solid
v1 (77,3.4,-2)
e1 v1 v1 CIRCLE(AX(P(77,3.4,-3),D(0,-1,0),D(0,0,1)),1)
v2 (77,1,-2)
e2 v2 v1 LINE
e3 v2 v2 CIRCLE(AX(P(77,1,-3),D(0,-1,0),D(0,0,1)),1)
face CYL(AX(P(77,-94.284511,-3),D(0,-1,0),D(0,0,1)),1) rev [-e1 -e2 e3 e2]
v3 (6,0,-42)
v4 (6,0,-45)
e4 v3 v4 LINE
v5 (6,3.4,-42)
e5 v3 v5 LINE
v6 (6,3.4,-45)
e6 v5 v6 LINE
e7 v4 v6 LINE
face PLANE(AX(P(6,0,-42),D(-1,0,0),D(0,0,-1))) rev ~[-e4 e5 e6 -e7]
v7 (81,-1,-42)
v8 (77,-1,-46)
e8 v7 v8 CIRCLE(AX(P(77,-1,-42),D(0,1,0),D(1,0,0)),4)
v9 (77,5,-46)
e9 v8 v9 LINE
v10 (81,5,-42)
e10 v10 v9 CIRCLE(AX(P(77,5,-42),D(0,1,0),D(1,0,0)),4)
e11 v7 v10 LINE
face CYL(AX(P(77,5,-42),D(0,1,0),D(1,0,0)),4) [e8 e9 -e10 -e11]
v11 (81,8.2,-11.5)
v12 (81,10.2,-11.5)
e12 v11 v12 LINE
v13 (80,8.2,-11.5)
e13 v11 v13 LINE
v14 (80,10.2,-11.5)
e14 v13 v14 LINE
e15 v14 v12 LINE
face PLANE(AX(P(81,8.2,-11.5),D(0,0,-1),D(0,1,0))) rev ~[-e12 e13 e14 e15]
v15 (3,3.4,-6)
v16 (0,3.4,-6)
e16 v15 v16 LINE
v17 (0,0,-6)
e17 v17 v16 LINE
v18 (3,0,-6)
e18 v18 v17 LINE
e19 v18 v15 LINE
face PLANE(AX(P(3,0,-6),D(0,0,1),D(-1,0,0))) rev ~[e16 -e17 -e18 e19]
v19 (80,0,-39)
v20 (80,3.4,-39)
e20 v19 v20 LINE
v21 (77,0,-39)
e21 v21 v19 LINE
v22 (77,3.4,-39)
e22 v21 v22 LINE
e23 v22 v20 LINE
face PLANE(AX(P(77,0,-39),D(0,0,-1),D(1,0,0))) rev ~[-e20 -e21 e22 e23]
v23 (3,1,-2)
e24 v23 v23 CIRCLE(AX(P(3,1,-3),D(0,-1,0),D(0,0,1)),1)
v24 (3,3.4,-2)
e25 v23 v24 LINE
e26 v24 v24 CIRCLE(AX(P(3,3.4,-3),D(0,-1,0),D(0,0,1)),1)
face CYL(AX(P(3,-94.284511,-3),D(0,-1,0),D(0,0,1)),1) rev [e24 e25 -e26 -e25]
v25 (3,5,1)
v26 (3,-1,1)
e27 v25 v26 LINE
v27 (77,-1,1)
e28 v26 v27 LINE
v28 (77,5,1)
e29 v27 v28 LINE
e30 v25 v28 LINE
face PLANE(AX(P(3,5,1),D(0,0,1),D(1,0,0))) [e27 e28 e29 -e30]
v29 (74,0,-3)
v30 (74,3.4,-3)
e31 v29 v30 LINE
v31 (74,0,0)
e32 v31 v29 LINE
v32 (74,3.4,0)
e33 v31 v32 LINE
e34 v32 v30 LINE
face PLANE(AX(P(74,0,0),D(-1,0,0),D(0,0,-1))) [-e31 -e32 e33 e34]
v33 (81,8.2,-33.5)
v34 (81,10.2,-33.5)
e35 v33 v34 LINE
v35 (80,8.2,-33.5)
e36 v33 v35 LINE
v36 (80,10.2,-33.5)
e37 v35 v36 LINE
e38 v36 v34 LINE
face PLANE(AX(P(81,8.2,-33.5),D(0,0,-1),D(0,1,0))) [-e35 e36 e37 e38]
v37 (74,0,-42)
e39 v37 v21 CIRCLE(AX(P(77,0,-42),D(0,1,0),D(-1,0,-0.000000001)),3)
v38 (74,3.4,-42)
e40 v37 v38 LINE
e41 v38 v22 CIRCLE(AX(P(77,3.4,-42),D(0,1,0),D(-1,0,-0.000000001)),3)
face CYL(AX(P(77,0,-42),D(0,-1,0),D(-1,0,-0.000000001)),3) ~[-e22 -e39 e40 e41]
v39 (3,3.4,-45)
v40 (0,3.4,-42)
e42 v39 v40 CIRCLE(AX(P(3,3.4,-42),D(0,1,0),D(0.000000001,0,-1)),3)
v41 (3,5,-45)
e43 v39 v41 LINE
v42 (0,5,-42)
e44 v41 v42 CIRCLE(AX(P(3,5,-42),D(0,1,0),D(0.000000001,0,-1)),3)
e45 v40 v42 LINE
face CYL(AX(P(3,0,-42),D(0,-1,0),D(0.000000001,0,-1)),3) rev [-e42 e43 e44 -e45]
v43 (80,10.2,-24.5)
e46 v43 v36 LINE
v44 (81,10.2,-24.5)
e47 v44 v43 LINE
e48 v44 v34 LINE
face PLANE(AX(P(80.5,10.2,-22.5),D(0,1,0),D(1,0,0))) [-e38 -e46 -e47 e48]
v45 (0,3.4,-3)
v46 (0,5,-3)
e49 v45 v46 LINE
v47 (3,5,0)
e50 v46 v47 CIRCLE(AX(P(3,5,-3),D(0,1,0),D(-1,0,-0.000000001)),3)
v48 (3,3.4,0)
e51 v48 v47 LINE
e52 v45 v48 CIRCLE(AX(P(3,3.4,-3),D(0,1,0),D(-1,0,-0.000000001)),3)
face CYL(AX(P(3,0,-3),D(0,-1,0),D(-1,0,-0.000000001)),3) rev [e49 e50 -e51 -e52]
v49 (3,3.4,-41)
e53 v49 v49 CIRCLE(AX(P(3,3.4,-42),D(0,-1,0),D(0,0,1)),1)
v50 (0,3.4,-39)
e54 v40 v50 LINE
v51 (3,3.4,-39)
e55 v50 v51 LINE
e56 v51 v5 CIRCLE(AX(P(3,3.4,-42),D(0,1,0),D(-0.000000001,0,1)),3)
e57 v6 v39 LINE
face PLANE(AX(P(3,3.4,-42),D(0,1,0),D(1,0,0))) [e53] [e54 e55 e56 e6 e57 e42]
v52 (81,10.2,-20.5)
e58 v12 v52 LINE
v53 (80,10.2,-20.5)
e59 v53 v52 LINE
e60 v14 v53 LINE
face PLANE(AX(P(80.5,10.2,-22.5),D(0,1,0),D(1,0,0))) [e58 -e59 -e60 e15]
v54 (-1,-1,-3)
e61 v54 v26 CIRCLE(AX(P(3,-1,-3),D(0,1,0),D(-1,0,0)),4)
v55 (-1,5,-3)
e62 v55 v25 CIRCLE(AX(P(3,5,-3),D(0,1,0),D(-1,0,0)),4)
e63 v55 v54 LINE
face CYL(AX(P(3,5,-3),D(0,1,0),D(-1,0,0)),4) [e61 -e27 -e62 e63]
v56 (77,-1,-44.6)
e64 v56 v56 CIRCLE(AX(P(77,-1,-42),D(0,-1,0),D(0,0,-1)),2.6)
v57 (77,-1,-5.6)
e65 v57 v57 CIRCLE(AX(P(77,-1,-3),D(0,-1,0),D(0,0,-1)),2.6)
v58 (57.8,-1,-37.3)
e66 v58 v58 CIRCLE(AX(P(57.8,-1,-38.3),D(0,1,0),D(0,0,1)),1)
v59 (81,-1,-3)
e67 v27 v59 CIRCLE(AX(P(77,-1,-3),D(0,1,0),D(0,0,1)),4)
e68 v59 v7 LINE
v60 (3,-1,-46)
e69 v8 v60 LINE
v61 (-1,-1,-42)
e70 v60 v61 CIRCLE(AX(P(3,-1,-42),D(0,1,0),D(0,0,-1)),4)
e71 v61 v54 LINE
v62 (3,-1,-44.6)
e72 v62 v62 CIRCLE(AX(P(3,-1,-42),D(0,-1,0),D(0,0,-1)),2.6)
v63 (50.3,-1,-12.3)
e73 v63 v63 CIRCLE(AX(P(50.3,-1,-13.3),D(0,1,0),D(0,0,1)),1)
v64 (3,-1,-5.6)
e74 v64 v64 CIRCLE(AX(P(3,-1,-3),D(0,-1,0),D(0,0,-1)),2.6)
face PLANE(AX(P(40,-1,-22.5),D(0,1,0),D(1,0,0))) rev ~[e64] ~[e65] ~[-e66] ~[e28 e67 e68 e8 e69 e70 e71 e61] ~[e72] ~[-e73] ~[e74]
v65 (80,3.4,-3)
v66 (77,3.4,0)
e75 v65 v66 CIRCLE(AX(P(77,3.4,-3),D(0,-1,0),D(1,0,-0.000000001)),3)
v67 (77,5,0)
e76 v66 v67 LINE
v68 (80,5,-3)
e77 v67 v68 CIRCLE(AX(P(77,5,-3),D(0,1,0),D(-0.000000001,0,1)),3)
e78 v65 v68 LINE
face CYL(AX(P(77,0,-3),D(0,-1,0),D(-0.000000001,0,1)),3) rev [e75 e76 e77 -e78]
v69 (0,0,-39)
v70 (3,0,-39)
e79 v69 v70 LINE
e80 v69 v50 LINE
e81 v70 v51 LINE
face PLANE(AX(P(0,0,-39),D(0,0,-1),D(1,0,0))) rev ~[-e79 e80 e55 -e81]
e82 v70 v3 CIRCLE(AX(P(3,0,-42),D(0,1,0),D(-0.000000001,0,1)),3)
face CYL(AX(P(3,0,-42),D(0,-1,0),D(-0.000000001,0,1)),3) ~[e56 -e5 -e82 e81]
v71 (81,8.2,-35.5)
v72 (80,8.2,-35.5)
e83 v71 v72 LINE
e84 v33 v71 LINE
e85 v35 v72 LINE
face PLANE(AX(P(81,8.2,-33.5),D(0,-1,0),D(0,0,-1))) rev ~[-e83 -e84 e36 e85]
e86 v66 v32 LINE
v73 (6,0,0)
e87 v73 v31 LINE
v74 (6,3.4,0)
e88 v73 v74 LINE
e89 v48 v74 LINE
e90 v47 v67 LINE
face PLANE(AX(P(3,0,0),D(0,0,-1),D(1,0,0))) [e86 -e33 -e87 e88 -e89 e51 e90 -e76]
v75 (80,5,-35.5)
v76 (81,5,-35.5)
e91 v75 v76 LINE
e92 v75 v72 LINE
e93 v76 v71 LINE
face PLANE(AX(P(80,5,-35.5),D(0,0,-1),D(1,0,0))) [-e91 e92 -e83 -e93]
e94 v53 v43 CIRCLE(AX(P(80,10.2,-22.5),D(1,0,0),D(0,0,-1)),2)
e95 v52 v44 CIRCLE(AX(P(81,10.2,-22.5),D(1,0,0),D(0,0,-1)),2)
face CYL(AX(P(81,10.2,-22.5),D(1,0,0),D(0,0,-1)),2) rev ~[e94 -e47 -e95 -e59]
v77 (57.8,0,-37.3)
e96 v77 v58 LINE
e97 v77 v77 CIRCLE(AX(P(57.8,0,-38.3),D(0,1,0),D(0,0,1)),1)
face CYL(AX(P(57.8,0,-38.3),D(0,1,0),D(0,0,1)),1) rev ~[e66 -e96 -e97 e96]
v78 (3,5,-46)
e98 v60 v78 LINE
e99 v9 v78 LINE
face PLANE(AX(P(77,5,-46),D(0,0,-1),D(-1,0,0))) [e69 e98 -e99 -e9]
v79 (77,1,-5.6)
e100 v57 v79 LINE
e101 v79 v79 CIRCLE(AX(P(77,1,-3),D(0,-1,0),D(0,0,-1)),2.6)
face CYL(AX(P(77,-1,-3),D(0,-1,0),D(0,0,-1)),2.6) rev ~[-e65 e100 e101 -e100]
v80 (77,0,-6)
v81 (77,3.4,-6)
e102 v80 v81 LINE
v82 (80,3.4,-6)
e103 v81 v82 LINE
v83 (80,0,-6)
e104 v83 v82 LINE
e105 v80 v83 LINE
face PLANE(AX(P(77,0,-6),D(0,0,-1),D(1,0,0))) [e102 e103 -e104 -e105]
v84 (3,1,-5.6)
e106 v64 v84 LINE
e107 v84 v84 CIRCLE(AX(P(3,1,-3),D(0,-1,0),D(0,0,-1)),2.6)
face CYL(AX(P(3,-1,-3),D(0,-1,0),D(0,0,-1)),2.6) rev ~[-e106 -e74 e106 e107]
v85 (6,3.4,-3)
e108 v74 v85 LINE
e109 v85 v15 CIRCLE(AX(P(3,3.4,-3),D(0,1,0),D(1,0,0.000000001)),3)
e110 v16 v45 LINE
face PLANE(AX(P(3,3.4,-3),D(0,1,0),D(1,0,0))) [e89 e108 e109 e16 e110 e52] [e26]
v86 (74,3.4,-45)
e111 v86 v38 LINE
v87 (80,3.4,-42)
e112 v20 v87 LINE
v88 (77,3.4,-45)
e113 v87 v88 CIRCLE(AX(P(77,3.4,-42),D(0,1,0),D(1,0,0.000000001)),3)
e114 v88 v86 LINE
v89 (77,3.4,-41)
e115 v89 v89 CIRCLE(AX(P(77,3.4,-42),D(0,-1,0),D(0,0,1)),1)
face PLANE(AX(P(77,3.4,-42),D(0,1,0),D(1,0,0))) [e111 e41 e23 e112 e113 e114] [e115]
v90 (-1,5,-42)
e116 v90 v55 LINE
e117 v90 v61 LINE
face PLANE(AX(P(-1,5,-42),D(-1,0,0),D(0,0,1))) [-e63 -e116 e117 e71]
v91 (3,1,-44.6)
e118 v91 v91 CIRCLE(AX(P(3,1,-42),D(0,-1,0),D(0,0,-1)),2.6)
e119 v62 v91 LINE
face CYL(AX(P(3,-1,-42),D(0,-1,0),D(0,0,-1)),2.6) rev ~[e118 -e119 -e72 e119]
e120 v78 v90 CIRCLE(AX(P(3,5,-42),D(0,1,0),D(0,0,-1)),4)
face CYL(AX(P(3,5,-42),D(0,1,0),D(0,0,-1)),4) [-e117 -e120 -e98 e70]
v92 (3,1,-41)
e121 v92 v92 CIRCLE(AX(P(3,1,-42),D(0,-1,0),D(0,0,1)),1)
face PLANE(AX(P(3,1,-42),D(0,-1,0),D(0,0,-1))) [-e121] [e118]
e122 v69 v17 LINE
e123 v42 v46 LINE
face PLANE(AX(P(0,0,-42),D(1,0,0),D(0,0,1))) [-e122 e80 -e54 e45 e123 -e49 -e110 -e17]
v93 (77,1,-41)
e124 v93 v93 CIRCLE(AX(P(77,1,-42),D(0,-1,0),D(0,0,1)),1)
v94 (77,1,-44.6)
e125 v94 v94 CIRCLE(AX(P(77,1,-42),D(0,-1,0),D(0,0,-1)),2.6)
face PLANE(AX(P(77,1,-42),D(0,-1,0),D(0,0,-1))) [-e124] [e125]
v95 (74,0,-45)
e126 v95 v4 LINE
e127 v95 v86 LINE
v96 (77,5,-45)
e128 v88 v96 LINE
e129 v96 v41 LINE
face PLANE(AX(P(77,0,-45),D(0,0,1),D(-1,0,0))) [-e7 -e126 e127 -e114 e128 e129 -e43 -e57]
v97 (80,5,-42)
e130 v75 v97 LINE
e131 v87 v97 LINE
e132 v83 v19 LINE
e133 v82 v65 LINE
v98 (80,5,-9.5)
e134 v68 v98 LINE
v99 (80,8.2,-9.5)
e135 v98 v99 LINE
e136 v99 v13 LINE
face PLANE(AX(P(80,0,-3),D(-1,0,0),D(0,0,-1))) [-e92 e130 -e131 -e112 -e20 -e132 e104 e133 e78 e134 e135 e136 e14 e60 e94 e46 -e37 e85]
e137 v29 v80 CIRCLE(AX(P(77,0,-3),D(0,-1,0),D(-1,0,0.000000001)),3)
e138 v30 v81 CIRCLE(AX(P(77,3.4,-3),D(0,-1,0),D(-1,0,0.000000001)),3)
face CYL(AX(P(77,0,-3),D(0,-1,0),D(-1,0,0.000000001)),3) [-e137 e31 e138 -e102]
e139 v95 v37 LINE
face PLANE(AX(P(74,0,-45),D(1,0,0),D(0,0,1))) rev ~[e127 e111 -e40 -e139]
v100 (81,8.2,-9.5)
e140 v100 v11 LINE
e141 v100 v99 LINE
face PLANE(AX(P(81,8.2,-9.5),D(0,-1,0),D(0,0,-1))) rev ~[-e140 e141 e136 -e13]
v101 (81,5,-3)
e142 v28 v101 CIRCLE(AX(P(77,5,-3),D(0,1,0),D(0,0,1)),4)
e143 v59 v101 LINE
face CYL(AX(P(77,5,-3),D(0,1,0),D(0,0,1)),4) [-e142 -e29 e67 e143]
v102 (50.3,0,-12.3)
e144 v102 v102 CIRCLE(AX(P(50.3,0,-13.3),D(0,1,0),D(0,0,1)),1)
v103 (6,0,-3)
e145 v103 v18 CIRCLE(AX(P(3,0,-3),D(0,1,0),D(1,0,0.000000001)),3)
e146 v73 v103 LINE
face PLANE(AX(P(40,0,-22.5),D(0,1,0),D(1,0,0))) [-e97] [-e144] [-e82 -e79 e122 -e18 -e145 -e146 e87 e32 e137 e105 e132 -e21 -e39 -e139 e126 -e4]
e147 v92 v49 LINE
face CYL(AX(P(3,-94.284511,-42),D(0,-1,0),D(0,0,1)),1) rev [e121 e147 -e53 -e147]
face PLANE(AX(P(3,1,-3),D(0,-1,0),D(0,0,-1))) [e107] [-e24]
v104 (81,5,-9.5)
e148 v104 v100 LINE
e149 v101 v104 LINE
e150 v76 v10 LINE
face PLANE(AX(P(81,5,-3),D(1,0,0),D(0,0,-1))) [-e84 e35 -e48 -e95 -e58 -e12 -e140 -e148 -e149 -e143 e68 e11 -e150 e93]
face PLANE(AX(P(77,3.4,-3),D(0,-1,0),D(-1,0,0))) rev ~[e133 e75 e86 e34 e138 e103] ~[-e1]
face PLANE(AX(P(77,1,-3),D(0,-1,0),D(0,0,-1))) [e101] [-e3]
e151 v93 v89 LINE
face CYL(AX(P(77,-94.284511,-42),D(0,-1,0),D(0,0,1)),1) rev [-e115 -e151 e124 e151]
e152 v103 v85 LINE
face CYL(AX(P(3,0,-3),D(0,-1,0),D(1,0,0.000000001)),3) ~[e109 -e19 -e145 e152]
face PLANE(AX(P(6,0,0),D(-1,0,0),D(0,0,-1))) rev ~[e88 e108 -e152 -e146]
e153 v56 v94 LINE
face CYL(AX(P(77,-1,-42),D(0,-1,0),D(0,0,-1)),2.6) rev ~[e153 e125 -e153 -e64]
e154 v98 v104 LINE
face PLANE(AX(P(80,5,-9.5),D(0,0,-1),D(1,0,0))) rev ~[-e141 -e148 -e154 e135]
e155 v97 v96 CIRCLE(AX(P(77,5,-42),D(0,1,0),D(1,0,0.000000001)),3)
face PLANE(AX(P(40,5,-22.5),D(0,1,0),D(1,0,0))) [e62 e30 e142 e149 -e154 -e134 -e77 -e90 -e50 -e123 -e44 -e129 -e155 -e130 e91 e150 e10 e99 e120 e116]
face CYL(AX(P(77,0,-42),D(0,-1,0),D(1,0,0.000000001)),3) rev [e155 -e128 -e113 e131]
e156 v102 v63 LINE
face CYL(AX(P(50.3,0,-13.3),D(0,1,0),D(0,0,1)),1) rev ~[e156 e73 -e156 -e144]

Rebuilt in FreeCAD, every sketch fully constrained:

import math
import FreeCAD as App
import Part
import Sketcher

V = App.Vector
Q = App.Units.Quantity

doc = App.newDocument("Part")
params = doc.addObject("Spreadsheet::Sheet", "Params")
for row, (alias, value) in enumerate([
    ("sketch1_radius", "4 mm"),
    ("sketch1_width", "74 mm"),
    ("sketch1_height", "39 mm"),
    ("pad1_length", "1 mm"),
    ("sketch2_radius", "4 mm"),
    ("sketch2_width", "74 mm"),
    ("sketch2_height", "39 mm"),
    ("pad2_length", "5 mm"),
    ("sketch3_radius", "3 mm"),
    ("sketch3_width", "74 mm"),
    ("sketch3_height", "39 mm"),
    ("pocket1_length", "5 mm"),
    ("sketch4_radius", "3 mm"),
    ("pad3_length", "3.4 mm"),
    ("sketch5_diameter", "2 mm"),
    ("sketch6_diameter", "2 mm"),
    ("sketch7_diameter", "5.2 mm"),
    ("pocket4_length", "2 mm"),
    ("sketch8_width", "1 mm"),
    ("sketch8_height", "26 mm"),
    ("pad4_length", "5.2 mm"),
    ("sketch9_diameter", "4 mm"),
    ("sketch10_width", "4 mm"),
    ("sketch10_height", "2 mm"),
    ("sketch11_width", "4 mm"),
    ("sketch11_height", "2 mm"),
], start=1):
    params.set(f"A{row}", alias)
    params.set(f"B{row}", "=" + value)
    params.setAlias(f"B{row}", alias)

body = doc.addObject("PartDesign::Body", "Body")

# Sketch on XZ plane
sketch1 = doc.addObject("Sketcher::SketchObject", "Sketch")
body.addObject(sketch1)
sketch1.AttachmentSupport = (doc.XZ_Plane, [""])
sketch1.MapMode = "FlatFace"
sketch1.addGeometry([
    Part.LineSegment(V(3, 1, 0), V(77, 1, 0)),  # 0
    Part.ArcOfCircle(Part.Circle(V(77, -3, 0), V(0, 0, 1), 4), math.radians(0), math.radians(90)),  # 1
    Part.LineSegment(V(81, -3, 0), V(81, -42, 0)),  # 2
    Part.ArcOfCircle(Part.Circle(V(77, -42, 0), V(0, 0, 1), 4), math.radians(-90), math.radians(0)),  # 3
    Part.LineSegment(V(77, -46, 0), V(3, -46, 0)),  # 4
    Part.ArcOfCircle(Part.Circle(V(3, -42, 0), V(0, 0, 1), 4), math.radians(180), math.radians(270)),  # 5
    Part.LineSegment(V(-1, -42, 0), V(-1, -3, 0)),  # 6
    Part.ArcOfCircle(Part.Circle(V(3, -3, 0), V(0, 0, 1), 4), math.radians(90), math.radians(180)),  # 7
], False)
sketch1.addConstraint([
    Sketcher.Constraint("Tangent", 0, 2, 1, 2),
    Sketcher.Constraint("Tangent", 1, 1, 2, 1),
    Sketcher.Constraint("Tangent", 2, 2, 3, 2),
    Sketcher.Constraint("Tangent", 3, 1, 4, 1),
    Sketcher.Constraint("Tangent", 4, 2, 5, 2),
    Sketcher.Constraint("Tangent", 5, 1, 6, 1),
    Sketcher.Constraint("Tangent", 6, 2, 7, 2),
    Sketcher.Constraint("Tangent", 7, 1, 0, 1),
    Sketcher.Constraint("Horizontal", 0),
    Sketcher.Constraint("Vertical", 2),
    Sketcher.Constraint("Horizontal", 4),
    Sketcher.Constraint("Vertical", 6),
    Sketcher.Constraint("Equal", 1, 3),
    Sketcher.Constraint("Equal", 3, 5),
    Sketcher.Constraint("Equal", 5, 7),
    Sketcher.Constraint("Radius", 1, Q("4 mm")),
    Sketcher.Constraint("DistanceX", 0, 1, 0, 2, Q("74 mm")),
    Sketcher.Constraint("DistanceY", 2, 2, 2, 1, Q("39 mm")),
    Sketcher.Constraint("DistanceX", -1, 1, 1, 3, Q("77 mm")),
    Sketcher.Constraint("DistanceY", 1, 3, -1, 1, Q("3 mm")),
])
sketch1.setExpression("Constraints[15]", "Params.sketch1_radius")
sketch1.setExpression("Constraints[16]", "Params.sketch1_width")
sketch1.setExpression("Constraints[17]", "Params.sketch1_height")
pad1 = doc.addObject("PartDesign::Pad", "Pad")
body.addObject(pad1)
pad1.Profile = sketch1
pad1.setExpression("Length", "Params.pad1_length")

# Sketch on XZ plane
sketch2 = doc.addObject("Sketcher::SketchObject", "Sketch001")
body.addObject(sketch2)
sketch2.AttachmentSupport = (doc.XZ_Plane, [""])
sketch2.MapMode = "FlatFace"
sketch2.AttachmentOffset = App.Placement(V(0, 0, -5), App.Rotation())
sketch2.addGeometry([
    Part.LineSegment(V(3, 1, 0), V(77, 1, 0)),  # 0
    Part.ArcOfCircle(Part.Circle(V(77, -3, 0), V(0, 0, 1), 4), math.radians(0), math.radians(90)),  # 1
    Part.LineSegment(V(81, -3, 0), V(81, -42, 0)),  # 2
    Part.ArcOfCircle(Part.Circle(V(77, -42, 0), V(0, 0, 1), 4), math.radians(-90), math.radians(0)),  # 3
    Part.LineSegment(V(77, -46, 0), V(3, -46, 0)),  # 4
    Part.ArcOfCircle(Part.Circle(V(3, -42, 0), V(0, 0, 1), 4), math.radians(180), math.radians(270)),  # 5
    Part.LineSegment(V(-1, -42, 0), V(-1, -3, 0)),  # 6
    Part.ArcOfCircle(Part.Circle(V(3, -3, 0), V(0, 0, 1), 4), math.radians(90), math.radians(180)),  # 7
], False)
sketch2.addConstraint([
    Sketcher.Constraint("Tangent", 0, 2, 1, 2),
    Sketcher.Constraint("Tangent", 1, 1, 2, 1),
    Sketcher.Constraint("Tangent", 2, 2, 3, 2),
    Sketcher.Constraint("Tangent", 3, 1, 4, 1),
    Sketcher.Constraint("Tangent", 4, 2, 5, 2),
    Sketcher.Constraint("Tangent", 5, 1, 6, 1),
    Sketcher.Constraint("Tangent", 6, 2, 7, 2),
    Sketcher.Constraint("Tangent", 7, 1, 0, 1),
    Sketcher.Constraint("Horizontal", 0),
    Sketcher.Constraint("Vertical", 2),
    Sketcher.Constraint("Horizontal", 4),
    Sketcher.Constraint("Vertical", 6),
    Sketcher.Constraint("Equal", 1, 3),
    Sketcher.Constraint("Equal", 3, 5),
    Sketcher.Constraint("Equal", 5, 7),
    Sketcher.Constraint("Radius", 1, Q("4 mm")),
    Sketcher.Constraint("DistanceX", 0, 1, 0, 2, Q("74 mm")),
    Sketcher.Constraint("DistanceY", 2, 2, 2, 1, Q("39 mm")),
    Sketcher.Constraint("DistanceX", -1, 1, 1, 3, Q("77 mm")),
    Sketcher.Constraint("DistanceY", 1, 3, -1, 1, Q("3 mm")),
])
sketch2.setExpression("Constraints[15]", "Params.sketch2_radius")
sketch2.setExpression("Constraints[16]", "Params.sketch2_width")
sketch2.setExpression("Constraints[17]", "Params.sketch2_height")
pad2 = doc.addObject("PartDesign::Pad", "Pad001")
body.addObject(pad2)
pad2.Profile = sketch2
pad2.setExpression("Length", "Params.pad2_length")

# Sketch on XZ plane
sketch3 = doc.addObject("Sketcher::SketchObject", "Sketch002")
body.addObject(sketch3)
sketch3.AttachmentSupport = (doc.XZ_Plane, [""])
sketch3.MapMode = "FlatFace"
sketch3.addGeometry([
    Part.LineSegment(V(80, -3, 0), V(80, -42, 0)),  # 0
    Part.ArcOfCircle(Part.Circle(V(77, -42, 0), V(0, 0, 1), 3), math.radians(-90), math.radians(0)),  # 1
    Part.LineSegment(V(77, -45, 0), V(3, -45, 0)),  # 2
    Part.ArcOfCircle(Part.Circle(V(3, -42, 0), V(0, 0, 1), 3), math.radians(180), math.radians(270)),  # 3
    Part.LineSegment(V(0, -42, 0), V(0, -3, 0)),  # 4
    Part.ArcOfCircle(Part.Circle(V(3, -3, 0), V(0, 0, 1), 3), math.radians(90), math.radians(180)),  # 5
    Part.LineSegment(V(3, 0, 0), V(77, 0, 0)),  # 6
    Part.ArcOfCircle(Part.Circle(V(77, -3, 0), V(0, 0, 1), 3), math.radians(0), math.radians(90)),  # 7
], False)
sketch3.addConstraint([
    Sketcher.Constraint("Tangent", 0, 2, 1, 2),
    Sketcher.Constraint("Tangent", 1, 1, 2, 1),
    Sketcher.Constraint("Tangent", 2, 2, 3, 2),
    Sketcher.Constraint("Tangent", 3, 1, 4, 1),
    Sketcher.Constraint("Tangent", 4, 2, 5, 2),
    Sketcher.Constraint("Tangent", 5, 1, 6, 1),
    Sketcher.Constraint("Tangent", 6, 2, 7, 2),
    Sketcher.Constraint("Tangent", 7, 1, 0, 1),
    Sketcher.Constraint("Vertical", 0),
    Sketcher.Constraint("Horizontal", 2),
    Sketcher.Constraint("Vertical", 4),
    Sketcher.Constraint("Horizontal", 6),
    Sketcher.Constraint("Equal", 1, 3),
    Sketcher.Constraint("Equal", 3, 5),
    Sketcher.Constraint("Equal", 5, 7),
    Sketcher.Constraint("PointOnObject", 3, 1, -2),
    Sketcher.Constraint("PointOnObject", 5, 1, -1),
    Sketcher.Constraint("Radius", 1, Q("3 mm")),
    Sketcher.Constraint("DistanceX", 2, 2, 2, 1, Q("74 mm")),
    Sketcher.Constraint("DistanceY", 0, 2, 0, 1, Q("39 mm")),
])
sketch3.setExpression("Constraints[17]", "Params.sketch3_radius")
sketch3.setExpression("Constraints[18]", "Params.sketch3_width")
sketch3.setExpression("Constraints[19]", "Params.sketch3_height")
pocket1 = doc.addObject("PartDesign::Pocket", "Pocket")
body.addObject(pocket1)
pocket1.Profile = sketch3
pocket1.setExpression("Length", "Params.pocket1_length")

# Sketch on XZ plane
sketch4 = doc.addObject("Sketcher::SketchObject", "Sketch003")
body.addObject(sketch4)
sketch4.AttachmentSupport = (doc.XZ_Plane, [""])
sketch4.MapMode = "FlatFace"
sketch4.addGeometry([
    Part.LineSegment(V(80, -6, 0), V(77, -6, 0)),  # 0
    Part.ArcOfCircle(Part.Circle(V(77, -3, 0), V(0, 0, 1), 3), math.radians(180), math.radians(270)),  # 1
    Part.LineSegment(V(74, -3, 0), V(74, 0, 0)),  # 2
    Part.LineSegment(V(74, 0, 0), V(77, 0, 0)),  # 3
    Part.ArcOfCircle(Part.Circle(V(77, -3, 0), V(0, 0, 1), 3), math.radians(0), math.radians(90)),  # 4
    Part.LineSegment(V(80, -3, 0), V(80, -6, 0)),  # 5
    Part.LineSegment(V(77, -45, 0), V(74, -45, 0)),  # 6
    Part.LineSegment(V(74, -45, 0), V(74, -42, 0)),  # 7
    Part.ArcOfCircle(Part.Circle(V(77, -42, 0), V(0, 0, 1), 3), math.radians(90), math.radians(180)),  # 8
    Part.LineSegment(V(77, -39, 0), V(80, -39, 0)),  # 9
    Part.LineSegment(V(80, -39, 0), V(80, -42, 0)),  # 10
    Part.ArcOfCircle(Part.Circle(V(77, -42, 0), V(0, 0, 1), 3), math.radians(-90), math.radians(0)),  # 11
    Part.LineSegment(V(0, -42, 0), V(0, -39, 0)),  # 12
    Part.LineSegment(V(0, -39, 0), V(3, -39, 0)),  # 13
    Part.ArcOfCircle(Part.Circle(V(3, -42, 0), V(0, 0, 1), 3), math.radians(0), math.radians(90)),  # 14
    Part.LineSegment(V(6, -42, 0), V(6, -45, 0)),  # 15
    Part.LineSegment(V(6, -45, 0), V(3, -45, 0)),  # 16
    Part.ArcOfCircle(Part.Circle(V(3, -42, 0), V(0, 0, 1), 3), math.radians(180), math.radians(270)),  # 17
    Part.LineSegment(V(3, -6, 0), V(0, -6, 0)),  # 18
    Part.LineSegment(V(0, -6, 0), V(0, -3, 0)),  # 19
    Part.ArcOfCircle(Part.Circle(V(3, -3, 0), V(0, 0, 1), 3), math.radians(90), math.radians(180)),  # 20
    Part.LineSegment(V(3, 0, 0), V(6, 0, 0)),  # 21
    Part.LineSegment(V(6, 0, 0), V(6, -3, 0)),  # 22
    Part.ArcOfCircle(Part.Circle(V(3, -3, 0), V(0, 0, 1), 3), math.radians(-90), math.radians(0)),  # 23
], False)
sketch4.addConstraint([
    Sketcher.Constraint("Tangent", 0, 2, 1, 2),
    Sketcher.Constraint("Tangent", 1, 1, 2, 1),
    Sketcher.Constraint("Coincident", 2, 2, 3, 1),
    Sketcher.Constraint("Tangent", 3, 2, 4, 2),
    Sketcher.Constraint("Tangent", 4, 1, 5, 1),
    Sketcher.Constraint("Coincident", 5, 2, 0, 1),
    Sketcher.Constraint("Coincident", 6, 2, 7, 1),
    Sketcher.Constraint("Tangent", 7, 2, 8, 2),
    Sketcher.Constraint("Tangent", 8, 1, 9, 1),
    Sketcher.Constraint("Coincident", 9, 2, 10, 1),
    Sketcher.Constraint("Tangent", 10, 2, 11, 2),
    Sketcher.Constraint("Tangent", 11, 1, 6, 1),
    Sketcher.Constraint("Coincident", 12, 2, 13, 1),
    Sketcher.Constraint("Tangent", 13, 2, 14, 2),
    Sketcher.Constraint("Tangent", 14, 1, 15, 1),
    Sketcher.Constraint("Coincident", 15, 2, 16, 1),
    Sketcher.Constraint("Tangent", 16, 2, 17, 2),
    Sketcher.Constraint("Tangent", 17, 1, 12, 1),
    Sketcher.Constraint("Coincident", 18, 2, 19, 1),
    Sketcher.Constraint("Tangent", 19, 2, 20, 2),
    Sketcher.Constraint("Tangent", 20, 1, 21, 1),
    Sketcher.Constraint("Coincident", 21, 2, 22, 1),
    Sketcher.Constraint("Tangent", 22, 2, 23, 2),
    Sketcher.Constraint("Tangent", 23, 1, 18, 1),
    Sketcher.Constraint("Horizontal", 0),
    Sketcher.Constraint("Vertical", 2),
    Sketcher.Constraint("Horizontal", 3),
    Sketcher.Constraint("Vertical", 5),
    Sketcher.Constraint("Horizontal", 6),
    Sketcher.Constraint("Vertical", 7),
    Sketcher.Constraint("Horizontal", 9),
    Sketcher.Constraint("Vertical", 10),
    Sketcher.Constraint("Vertical", 12),
    Sketcher.Constraint("Horizontal", 13),
    Sketcher.Constraint("Vertical", 15),
    Sketcher.Constraint("Horizontal", 16),
    Sketcher.Constraint("Horizontal", 18),
    Sketcher.Constraint("Vertical", 19),
    Sketcher.Constraint("Horizontal", 21),
    Sketcher.Constraint("Vertical", 22),
    Sketcher.Constraint("Coincident", 4, 3, 1, 3),
    Sketcher.Constraint("Coincident", 11, 3, 8, 3),
    Sketcher.Constraint("Coincident", 17, 3, 14, 3),
    Sketcher.Constraint("Coincident", 23, 3, 20, 3),
    Sketcher.Constraint("Equal", 1, 4),
    Sketcher.Constraint("Equal", 4, 8),
    Sketcher.Constraint("Equal", 8, 11),
    Sketcher.Constraint("Equal", 11, 14),
    Sketcher.Constraint("Equal", 14, 17),
    Sketcher.Constraint("Equal", 17, 20),
    Sketcher.Constraint("Equal", 20, 23),
    Sketcher.Constraint("PointOnObject", 2, 2, -1),
    Sketcher.Constraint("PointOnObject", 12, 2, -2),
    Sketcher.Constraint("PointOnObject", 18, 2, -2),
    Sketcher.Constraint("PointOnObject", 20, 1, -1),
    Sketcher.Constraint("Horizontal", 11, 3, 14, 3),
    Sketcher.Constraint("Vertical", 4, 3, 8, 3),
    Sketcher.Constraint("Radius", 1, Q("3 mm")),
    Sketcher.Constraint("DistanceX", -1, 1, 1, 3, Q("77 mm")),
    Sketcher.Constraint("DistanceY", 8, 3, -1, 1, Q("42 mm")),
])
sketch4.setExpression("Constraints[57]", "Params.sketch4_radius")
pad3 = doc.addObject("PartDesign::Pad", "Pad002")
body.addObject(pad3)
pad3.Profile = sketch4
pad3.setExpression("Length", "Params.pad3_length")
pad3.Reversed = True

# Sketch on XZ plane
sketch5 = doc.addObject("Sketcher::SketchObject", "Sketch004")
body.addObject(sketch5)
sketch5.AttachmentSupport = (doc.XZ_Plane, [""])
sketch5.MapMode = "FlatFace"
sketch5.addGeometry([
    Part.Circle(V(3, -42, 0), V(0, 0, 1), 1),
    Part.Circle(V(3, -3, 0), V(0, 0, 1), 1),
    Part.Circle(V(77, -3, 0), V(0, 0, 1), 1),
    Part.Circle(V(77, -42, 0), V(0, 0, 1), 1),
], False)
sketch5.addConstraint([
    Sketcher.Constraint("Equal", 0, 1),
    Sketcher.Constraint("Equal", 1, 2),
    Sketcher.Constraint("Equal", 2, 3),
    Sketcher.Constraint("Horizontal", 1, 3, 2, 3),
    Sketcher.Constraint("Horizontal", 0, 3, 3, 3),
    Sketcher.Constraint("Vertical", 0, 3, 1, 3),
    Sketcher.Constraint("Vertical", 2, 3, 3, 3),
    Sketcher.Constraint("Diameter", 0, Q("2 mm")),
    Sketcher.Constraint("DistanceX", -1, 1, 0, 3, Q("3 mm")),
    Sketcher.Constraint("DistanceY", 0, 3, -1, 1, Q("42 mm")),
    Sketcher.Constraint("DistanceY", 1, 3, -1, 1, Q("3 mm")),
    Sketcher.Constraint("DistanceX", -1, 1, 2, 3, Q("77 mm")),
])
sketch5.setExpression("Constraints[7]", "Params.sketch5_diameter")
pocket2 = doc.addObject("PartDesign::Pocket", "Pocket001")
body.addObject(pocket2)
pocket2.Profile = sketch5
pocket2.Type = "ThroughAll"
pocket2.Midplane = True

# Sketch on XZ plane
sketch6 = doc.addObject("Sketcher::SketchObject", "Sketch005")
body.addObject(sketch6)
sketch6.AttachmentSupport = (doc.XZ_Plane, [""])
sketch6.MapMode = "FlatFace"
sketch6.addGeometry([
    Part.Circle(V(50.3, -13.3, 0), V(0, 0, 1), 1),
    Part.Circle(V(57.8, -38.3, 0), V(0, 0, 1), 1),
], False)
sketch6.addConstraint([
    Sketcher.Constraint("Equal", 0, 1),
    Sketcher.Constraint("Diameter", 0, Q("2 mm")),
    Sketcher.Constraint("DistanceY", 1, 3, 0, 3, Q("25 mm")),
    Sketcher.Constraint("DistanceX", -1, 1, 0, 3, Q("50.3 mm")),
    Sketcher.Constraint("DistanceY", 0, 3, -1, 1, Q("13.3 mm")),
    Sketcher.Constraint("DistanceX", -1, 1, 1, 3, Q("57.8 mm")),
])
sketch6.setExpression("Constraints[1]", "Params.sketch6_diameter")
pocket3 = doc.addObject("PartDesign::Pocket", "Pocket002")
body.addObject(pocket3)
pocket3.Profile = sketch6
pocket3.Type = "ThroughAll"
pocket3.Reversed = True

# Sketch on XZ plane
sketch7 = doc.addObject("Sketcher::SketchObject", "Sketch006")
body.addObject(sketch7)
sketch7.AttachmentSupport = (doc.XZ_Plane, [""])
sketch7.MapMode = "FlatFace"
sketch7.AttachmentOffset = App.Placement(V(0, 0, 1), App.Rotation())
sketch7.addGeometry([
    Part.Circle(V(3, -3, 0), V(0, 0, 1), 2.6),
    Part.Circle(V(77, -3, 0), V(0, 0, 1), 2.6),
    Part.Circle(V(3, -42, 0), V(0, 0, 1), 2.6),
    Part.Circle(V(77, -42, 0), V(0, 0, 1), 2.6),
], False)
sketch7.addConstraint([
    Sketcher.Constraint("Equal", 0, 1),
    Sketcher.Constraint("Equal", 1, 2),
    Sketcher.Constraint("Equal", 2, 3),
    Sketcher.Constraint("Horizontal", 0, 3, 1, 3),
    Sketcher.Constraint("Horizontal", 2, 3, 3, 3),
    Sketcher.Constraint("Vertical", 0, 3, 2, 3),
    Sketcher.Constraint("Vertical", 1, 3, 3, 3),
    Sketcher.Constraint("Diameter", 0, Q("5.2 mm")),
    Sketcher.Constraint("DistanceX", -1, 1, 0, 3, Q("3 mm")),
    Sketcher.Constraint("DistanceY", 0, 3, -1, 1, Q("3 mm")),
    Sketcher.Constraint("DistanceX", -1, 1, 1, 3, Q("77 mm")),
    Sketcher.Constraint("DistanceY", 2, 3, -1, 1, Q("42 mm")),
])
sketch7.setExpression("Constraints[7]", "Params.sketch7_diameter")
pocket4 = doc.addObject("PartDesign::Pocket", "Pocket003")
body.addObject(pocket4)
pocket4.Profile = sketch7
pocket4.setExpression("Length", "Params.pocket4_length")

# Sketch on XZ plane
sketch8 = doc.addObject("Sketcher::SketchObject", "Sketch007")
body.addObject(sketch8)
sketch8.AttachmentSupport = (doc.XZ_Plane, [""])
sketch8.MapMode = "FlatFace"
sketch8.AttachmentOffset = App.Placement(V(0, 0, -5), App.Rotation())
sketch8.addGeometry([
    Part.LineSegment(V(80, -35.5, 0), V(80, -9.5, 0)),
    Part.LineSegment(V(80, -9.5, 0), V(81, -9.5, 0)),
    Part.LineSegment(V(81, -9.5, 0), V(81, -35.5, 0)),
    Part.LineSegment(V(81, -35.5, 0), V(80, -35.5, 0)),
], False)
sketch8.addConstraint([
    Sketcher.Constraint("Coincident", 0, 2, 1, 1),
    Sketcher.Constraint("Coincident", 1, 2, 2, 1),
    Sketcher.Constraint("Coincident", 2, 2, 3, 1),
    Sketcher.Constraint("Coincident", 3, 2, 0, 1),
    Sketcher.Constraint("Vertical", 0),
    Sketcher.Constraint("Horizontal", 1),
    Sketcher.Constraint("Vertical", 2),
    Sketcher.Constraint("Horizontal", 3),
    Sketcher.Constraint("DistanceX", 1, 1, 1, 2, Q("1 mm")),
    Sketcher.Constraint("DistanceY", 0, 1, 0, 2, Q("26 mm")),
    Sketcher.Constraint("DistanceX", -1, 1, 0, 2, Q("80 mm")),
    Sketcher.Constraint("DistanceY", 0, 2, -1, 1, Q("9.5 mm")),
])
sketch8.setExpression("Constraints[8]", "Params.sketch8_width")
sketch8.setExpression("Constraints[9]", "Params.sketch8_height")
pad4 = doc.addObject("PartDesign::Pad", "Pad003")
body.addObject(pad4)
pad4.Profile = sketch8
pad4.setExpression("Length", "Params.pad4_length")
pad4.Reversed = True

# Sketch on YZ plane
sketch9 = doc.addObject("Sketcher::SketchObject", "Sketch008")
body.addObject(sketch9)
sketch9.AttachmentSupport = (doc.YZ_Plane, [""])
sketch9.MapMode = "FlatFace"
sketch9.AttachmentOffset = App.Placement(V(0, 0, 81), App.Rotation())
sketch9.addGeometry(Part.Circle(V(10.2, -22.5, 0), V(0, 0, 1), 2), False)
sketch9.addConstraint([
    Sketcher.Constraint("Diameter", 0, Q("4 mm")),
    Sketcher.Constraint("DistanceX", -1, 1, 0, 3, Q("10.2 mm")),
    Sketcher.Constraint("DistanceY", 0, 3, -1, 1, Q("22.5 mm")),
])
sketch9.setExpression("Constraints[0]", "Params.sketch9_diameter")
pocket5 = doc.addObject("PartDesign::Pocket", "Pocket004")
body.addObject(pocket5)
pocket5.Profile = sketch9
pocket5.Type = "UpToFirst"

# Sketch on YZ plane
sketch10 = doc.addObject("Sketcher::SketchObject", "Sketch009")
body.addObject(sketch10)
sketch10.AttachmentSupport = (doc.YZ_Plane, [""])
sketch10.MapMode = "FlatFace"
sketch10.AttachmentOffset = App.Placement(V(0, 0, 81), App.Rotation())
sketch10.addGeometry([
    Part.LineSegment(V(12.2, -9.5, 0), V(8.2, -9.5, 0)),
    Part.LineSegment(V(8.2, -9.5, 0), V(8.2, -11.5, 0)),
    Part.LineSegment(V(8.2, -11.5, 0), V(12.2, -11.5, 0)),
    Part.LineSegment(V(12.2, -11.5, 0), V(12.2, -9.5, 0)),
], False)
sketch10.addConstraint([
    Sketcher.Constraint("Coincident", 0, 2, 1, 1),
    Sketcher.Constraint("Coincident", 1, 2, 2, 1),
    Sketcher.Constraint("Coincident", 2, 2, 3, 1),
    Sketcher.Constraint("Coincident", 3, 2, 0, 1),
    Sketcher.Constraint("Horizontal", 0),
    Sketcher.Constraint("Vertical", 1),
    Sketcher.Constraint("Horizontal", 2),
    Sketcher.Constraint("Vertical", 3),
    Sketcher.Constraint("DistanceX", 0, 2, 0, 1, Q("4 mm")),
    Sketcher.Constraint("DistanceY", 1, 2, 1, 1, Q("2 mm")),
    Sketcher.Constraint("DistanceX", -1, 1, 0, 2, Q("8.2 mm")),
    Sketcher.Constraint("DistanceY", 0, 2, -1, 1, Q("9.5 mm")),
])
sketch10.setExpression("Constraints[8]", "Params.sketch10_width")
sketch10.setExpression("Constraints[9]", "Params.sketch10_height")
pocket6 = doc.addObject("PartDesign::Pocket", "Pocket005")
body.addObject(pocket6)
pocket6.Profile = sketch10
pocket6.Type = "UpToFirst"

# Sketch on YZ plane
sketch11 = doc.addObject("Sketcher::SketchObject", "Sketch010")
body.addObject(sketch11)
sketch11.AttachmentSupport = (doc.YZ_Plane, [""])
sketch11.MapMode = "FlatFace"
sketch11.AttachmentOffset = App.Placement(V(0, 0, 81), App.Rotation())
sketch11.addGeometry([
    Part.LineSegment(V(12.2, -33.5, 0), V(8.2, -33.5, 0)),
    Part.LineSegment(V(8.2, -33.5, 0), V(8.2, -35.5, 0)),
    Part.LineSegment(V(8.2, -35.5, 0), V(12.2, -35.5, 0)),
    Part.LineSegment(V(12.2, -35.5, 0), V(12.2, -33.5, 0)),
], False)
sketch11.addConstraint([
    Sketcher.Constraint("Coincident", 0, 2, 1, 1),
    Sketcher.Constraint("Coincident", 1, 2, 2, 1),
    Sketcher.Constraint("Coincident", 2, 2, 3, 1),
    Sketcher.Constraint("Coincident", 3, 2, 0, 1),
    Sketcher.Constraint("Horizontal", 0),
    Sketcher.Constraint("Vertical", 1),
    Sketcher.Constraint("Horizontal", 2),
    Sketcher.Constraint("Vertical", 3),
    Sketcher.Constraint("DistanceX", 0, 2, 0, 1, Q("4 mm")),
    Sketcher.Constraint("DistanceY", 1, 2, 1, 1, Q("2 mm")),
    Sketcher.Constraint("DistanceX", -1, 1, 0, 2, Q("8.2 mm")),
    Sketcher.Constraint("DistanceY", 0, 2, -1, 1, Q("33.5 mm")),
])
sketch11.setExpression("Constraints[8]", "Params.sketch11_width")
sketch11.setExpression("Constraints[9]", "Params.sketch11_height")
pocket7 = doc.addObject("PartDesign::Pocket", "Pocket006")
body.addObject(pocket7)
pocket7.Profile = sketch11
pocket7.Type = "UpToFirst"

doc.recompute()
